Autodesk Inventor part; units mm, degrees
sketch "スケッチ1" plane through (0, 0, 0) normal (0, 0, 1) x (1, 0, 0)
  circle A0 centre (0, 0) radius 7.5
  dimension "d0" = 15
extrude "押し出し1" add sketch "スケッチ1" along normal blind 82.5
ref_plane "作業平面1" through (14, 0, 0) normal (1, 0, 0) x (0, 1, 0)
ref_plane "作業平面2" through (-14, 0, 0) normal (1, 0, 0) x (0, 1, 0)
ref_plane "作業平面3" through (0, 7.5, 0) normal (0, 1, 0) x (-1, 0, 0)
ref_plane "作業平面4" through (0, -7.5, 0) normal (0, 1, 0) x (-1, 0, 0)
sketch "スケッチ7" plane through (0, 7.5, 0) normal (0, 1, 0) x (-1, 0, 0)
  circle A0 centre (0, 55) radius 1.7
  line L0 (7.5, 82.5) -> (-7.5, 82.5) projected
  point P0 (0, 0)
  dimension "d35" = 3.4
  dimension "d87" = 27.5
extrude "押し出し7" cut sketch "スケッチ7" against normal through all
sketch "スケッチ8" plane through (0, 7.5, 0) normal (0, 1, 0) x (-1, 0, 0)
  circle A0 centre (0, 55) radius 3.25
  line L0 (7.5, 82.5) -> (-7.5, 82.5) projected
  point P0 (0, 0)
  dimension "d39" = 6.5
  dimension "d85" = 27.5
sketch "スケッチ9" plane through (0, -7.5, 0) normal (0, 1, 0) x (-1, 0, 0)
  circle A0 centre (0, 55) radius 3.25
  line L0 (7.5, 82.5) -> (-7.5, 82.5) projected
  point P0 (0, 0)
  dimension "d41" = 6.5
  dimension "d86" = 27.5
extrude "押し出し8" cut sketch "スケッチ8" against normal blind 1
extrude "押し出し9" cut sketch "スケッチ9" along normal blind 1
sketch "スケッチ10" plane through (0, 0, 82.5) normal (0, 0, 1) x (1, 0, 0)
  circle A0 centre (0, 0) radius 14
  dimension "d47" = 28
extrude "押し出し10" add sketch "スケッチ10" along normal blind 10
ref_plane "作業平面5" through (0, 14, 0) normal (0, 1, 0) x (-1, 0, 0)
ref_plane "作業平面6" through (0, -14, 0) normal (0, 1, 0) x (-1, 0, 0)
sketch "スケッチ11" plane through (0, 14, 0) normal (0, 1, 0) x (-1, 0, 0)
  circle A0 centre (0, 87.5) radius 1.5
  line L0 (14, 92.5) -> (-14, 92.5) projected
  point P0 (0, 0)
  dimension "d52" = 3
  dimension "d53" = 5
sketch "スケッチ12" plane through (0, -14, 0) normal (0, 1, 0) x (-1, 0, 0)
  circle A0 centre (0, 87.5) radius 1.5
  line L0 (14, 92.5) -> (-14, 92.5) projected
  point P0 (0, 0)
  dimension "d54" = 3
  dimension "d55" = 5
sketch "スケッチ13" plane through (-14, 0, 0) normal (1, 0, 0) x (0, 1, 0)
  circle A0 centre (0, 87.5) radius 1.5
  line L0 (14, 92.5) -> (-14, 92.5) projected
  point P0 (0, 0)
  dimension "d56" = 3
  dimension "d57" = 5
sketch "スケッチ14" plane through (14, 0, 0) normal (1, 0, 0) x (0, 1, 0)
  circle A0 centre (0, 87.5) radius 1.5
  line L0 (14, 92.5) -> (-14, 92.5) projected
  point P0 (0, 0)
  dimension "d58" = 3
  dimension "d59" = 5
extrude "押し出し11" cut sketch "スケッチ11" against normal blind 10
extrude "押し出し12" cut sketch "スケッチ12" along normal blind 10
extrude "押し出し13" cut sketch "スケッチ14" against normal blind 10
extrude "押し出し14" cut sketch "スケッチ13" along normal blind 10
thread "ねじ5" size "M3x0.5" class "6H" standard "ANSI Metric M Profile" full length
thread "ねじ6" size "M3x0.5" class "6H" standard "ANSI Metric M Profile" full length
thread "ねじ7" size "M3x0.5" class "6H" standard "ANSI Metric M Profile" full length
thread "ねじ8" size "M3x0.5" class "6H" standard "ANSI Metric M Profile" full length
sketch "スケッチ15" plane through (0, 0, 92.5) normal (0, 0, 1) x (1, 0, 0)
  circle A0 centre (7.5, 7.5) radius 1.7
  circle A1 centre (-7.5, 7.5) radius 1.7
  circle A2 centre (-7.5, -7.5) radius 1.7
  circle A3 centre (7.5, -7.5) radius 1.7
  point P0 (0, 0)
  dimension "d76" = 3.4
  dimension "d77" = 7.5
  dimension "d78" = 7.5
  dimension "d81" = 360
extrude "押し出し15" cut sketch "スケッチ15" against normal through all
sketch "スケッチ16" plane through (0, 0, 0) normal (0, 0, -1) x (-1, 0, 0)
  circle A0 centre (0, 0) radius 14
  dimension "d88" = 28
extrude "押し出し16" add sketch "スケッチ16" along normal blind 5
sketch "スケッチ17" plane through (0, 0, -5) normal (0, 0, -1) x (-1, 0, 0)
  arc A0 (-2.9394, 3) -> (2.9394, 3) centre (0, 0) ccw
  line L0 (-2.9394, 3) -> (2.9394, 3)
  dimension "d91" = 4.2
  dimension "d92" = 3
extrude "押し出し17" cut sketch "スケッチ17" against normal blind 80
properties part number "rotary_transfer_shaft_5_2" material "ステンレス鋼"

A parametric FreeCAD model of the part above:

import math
import FreeCAD as App
import Part
import Sketcher
from FreeCAD import Vector
Q = App.Units.Quantity

doc = App.newDocument("Part")
body = doc.addObject("PartDesign::Body", "Body")

sketch1 = doc.addObject("Sketcher::SketchObject", "Sketch")
body.addObject(sketch1)
sketch1.AttachmentSupport = (doc.XY_Plane, [""])
sketch1.MapMode = "FlatFace"
sketch1.addGeometry(Part.Circle(Vector(0, 0, 0), Vector(0, 0, 1), 8), False)
sketch1.addConstraint(Sketcher.Constraint("Coincident", 0, 3, -1, 1))
sketch1.addConstraint(Sketcher.Constraint("Diameter", 0, Q("15 mm")))
pad1 = doc.addObject("PartDesign::Pad", "Pad")
body.addObject(pad1)
pad1.Profile = sketch1
pad1.Length = 82.5

sketch2 = doc.addObject("Sketcher::SketchObject", "Sketch001")
body.addObject(sketch2)
sketch2.AttachmentSupport = (doc.XZ_Plane, [""])
sketch2.MapMode = "FlatFace"
sketch2.AttachmentOffset = App.Placement(Vector(0, 0, -7.5), App.Rotation())
sketch2.addGeometry(Part.Circle(Vector(0, 55, 0), Vector(0, 0, 1), 1.7), False)
sketch2.addConstraint(Sketcher.Constraint("PointOnObject", 0, 3, -2))
sketch2.addConstraint(Sketcher.Constraint("Diameter", 0, Q("3.4 mm")))
sketch2.addConstraint(Sketcher.Constraint("DistanceY", -1, 1, 0, 3, Q("55 mm")))
pocket1 = doc.addObject("PartDesign::Pocket", "Pocket")
body.addObject(pocket1)
pocket1.Profile = sketch2
pocket1.Type = "ThroughAll"
pocket1.Reversed = True

sketch3 = doc.addObject("Sketcher::SketchObject", "Sketch002")
body.addObject(sketch3)
sketch3.AttachmentSupport = (doc.XZ_Plane, [""])
sketch3.MapMode = "FlatFace"
sketch3.AttachmentOffset = App.Placement(Vector(0, 0, -7.5), App.Rotation())
sketch3.addGeometry(Part.Circle(Vector(0, 55, 0), Vector(0, 0, 1), 3.2), False)
sketch3.addConstraint(Sketcher.Constraint("PointOnObject", 0, 3, -2))
sketch3.addConstraint(Sketcher.Constraint("Diameter", 0, Q("6.5 mm")))
sketch3.addConstraint(Sketcher.Constraint("DistanceY", -1, 1, 0, 3, Q("55 mm")))
pocket2 = doc.addObject("PartDesign::Pocket", "Pocket001")
body.addObject(pocket2)
pocket2.Profile = sketch3
pocket2.Length = 1
pocket2.Reversed = True

sketch4 = doc.addObject("Sketcher::SketchObject", "Sketch003")
body.addObject(sketch4)
sketch4.AttachmentSupport = (doc.XZ_Plane, [""])
sketch4.MapMode = "FlatFace"
sketch4.AttachmentOffset = App.Placement(Vector(0, 0, 7.5), App.Rotation())
sketch4.addGeometry(Part.Circle(Vector(0, 55, 0), Vector(0, 0, 1), 3.2), False)
sketch4.addConstraint(Sketcher.Constraint("PointOnObject", 0, 3, -2))
sketch4.addConstraint(Sketcher.Constraint("Diameter", 0, Q("6.5 mm")))
sketch4.addConstraint(Sketcher.Constraint("DistanceY", -1, 1, 0, 3, Q("55 mm")))
pocket3 = doc.addObject("PartDesign::Pocket", "Pocket002")
body.addObject(pocket3)
pocket3.Profile = sketch4
pocket3.Length = 1

sketch5 = doc.addObject("Sketcher::SketchObject", "Sketch004")
body.addObject(sketch5)
sketch5.AttachmentSupport = (doc.XY_Plane, [""])
sketch5.MapMode = "FlatFace"
sketch5.AttachmentOffset = App.Placement(Vector(0, 0, 82.5), App.Rotation())
sketch5.addGeometry(Part.Circle(Vector(0, 0, 0), Vector(0, 0, 1), 14), False)
sketch5.addConstraint(Sketcher.Constraint("Coincident", 0, 3, -1, 1))
sketch5.addConstraint(Sketcher.Constraint("Diameter", 0, Q("28 mm")))
pad2 = doc.addObject("PartDesign::Pad", "Pad001")
body.addObject(pad2)
pad2.Profile = sketch5
pad2.Length = 10

sketch6 = doc.addObject("Sketcher::SketchObject", "Sketch005")
body.addObject(sketch6)
sketch6.AttachmentSupport = (doc.XZ_Plane, [""])
sketch6.MapMode = "FlatFace"
sketch6.AttachmentOffset = App.Placement(Vector(0, 0, -14), App.Rotation())
sketch6.addGeometry(Part.Circle(Vector(0, 87.5, 0), Vector(0, 0, 1), 1.5), False)
sketch6.addConstraint(Sketcher.Constraint("PointOnObject", 0, 3, -2))
sketch6.addConstraint(Sketcher.Constraint("Diameter", 0, Q("3 mm")))
sketch6.addConstraint(Sketcher.Constraint("DistanceY", -1, 1, 0, 3, Q("87.5 mm")))
pocket4 = doc.addObject("PartDesign::Pocket", "Pocket003")
body.addObject(pocket4)
pocket4.Profile = sketch6
pocket4.Length = 10
pocket4.Reversed = True

sketch7 = doc.addObject("Sketcher::SketchObject", "Sketch006")
body.addObject(sketch7)
sketch7.AttachmentSupport = (doc.XZ_Plane, [""])
sketch7.MapMode = "FlatFace"
sketch7.AttachmentOffset = App.Placement(Vector(0, 0, 14), App.Rotation())
sketch7.addGeometry(Part.Circle(Vector(0, 87.5, 0), Vector(0, 0, 1), 1.5), False)
sketch7.addConstraint(Sketcher.Constraint("PointOnObject", 0, 3, -2))
sketch7.addConstraint(Sketcher.Constraint("Diameter", 0, Q("3 mm")))
sketch7.addConstraint(Sketcher.Constraint("DistanceY", -1, 1, 0, 3, Q("87.5 mm")))
pocket5 = doc.addObject("PartDesign::Pocket", "Pocket004")
body.addObject(pocket5)
pocket5.Profile = sketch7
pocket5.Length = 10

sketch8 = doc.addObject("Sketcher::SketchObject", "Sketch007")
body.addObject(sketch8)
sketch8.AttachmentSupport = (doc.YZ_Plane, [""])
sketch8.MapMode = "FlatFace"
sketch8.AttachmentOffset = App.Placement(Vector(0, 0, 14), App.Rotation())
sketch8.addGeometry(Part.Circle(Vector(0, 87.5, 0), Vector(0, 0, 1), 1.5), False)
sketch8.addConstraint(Sketcher.Constraint("PointOnObject", 0, 3, -2))
sketch8.addConstraint(Sketcher.Constraint("Diameter", 0, Q("3 mm")))
sketch8.addConstraint(Sketcher.Constraint("DistanceY", -1, 1, 0, 3, Q("87.5 mm")))
pocket6 = doc.addObject("PartDesign::Pocket", "Pocket005")
body.addObject(pocket6)
pocket6.Profile = sketch8
pocket6.Length = 10

sketch9 = doc.addObject("Sketcher::SketchObject", "Sketch008")
body.addObject(sketch9)
sketch9.AttachmentSupport = (doc.YZ_Plane, [""])
sketch9.MapMode = "FlatFace"
sketch9.AttachmentOffset = App.Placement(Vector(0, 0, -14), App.Rotation())
sketch9.addGeometry(Part.Circle(Vector(0, 87.5, 0), Vector(0, 0, 1), 1.5), False)
sketch9.addConstraint(Sketcher.Constraint("PointOnObject", 0, 3, -2))
sketch9.addConstraint(Sketcher.Constraint("Diameter", 0, Q("3 mm")))
sketch9.addConstraint(Sketcher.Constraint("DistanceY", -1, 1, 0, 3, Q("87.5 mm")))
pocket7 = doc.addObject("PartDesign::Pocket", "Pocket006")
body.addObject(pocket7)
pocket7.Profile = sketch9
pocket7.Length = 10
pocket7.Reversed = True

sketch10 = doc.addObject("Sketcher::SketchObject", "Sketch009")
body.addObject(sketch10)
sketch10.AttachmentSupport = (doc.XY_Plane, [""])
sketch10.MapMode = "FlatFace"
sketch10.AttachmentOffset = App.Placement(Vector(0, 0, 92.5), App.Rotation())
sketch10.addGeometry(Part.Circle(Vector(7.5, 7.5, 0), Vector(0, 0, 1), 1.7), False)
sketch10.addGeometry(Part.Circle(Vector(-7.5, 7.5, 0), Vector(0, 0, 1), 1.7), False)
sketch10.addGeometry(Part.Circle(Vector(-7.5, -7.5, 0), Vector(0, 0, 1), 1.7), False)
sketch10.addGeometry(Part.Circle(Vector(7.5, -7.5, 0), Vector(0, 0, 1), 1.7), False)
sketch10.addConstraint(Sketcher.Constraint("Equal", 0, 1))
sketch10.addConstraint(Sketcher.Constraint("Equal", 1, 2))
sketch10.addConstraint(Sketcher.Constraint("Equal", 2, 3))
sketch10.addConstraint(Sketcher.Constraint("Symmetric", 0, 3, 2, 3, -1, 1))
sketch10.addConstraint(Sketcher.Constraint("Symmetric", 1, 3, 3, 3, -1, 1))
sketch10.addConstraint(Sketcher.Constraint("Symmetric", 0, 3, 1, 3, -2))
sketch10.addConstraint(Sketcher.Constraint("Diameter", 0, Q("3.4 mm")))
sketch10.addConstraint(Sketcher.Constraint("DistanceX", -1, 1, 0, 3, Q("7.5 mm")))
sketch10.addConstraint(Sketcher.Constraint("DistanceY", -1, 1, 0, 3, Q("7.5 mm")))
pocket8 = doc.addObject("PartDesign::Pocket", "Pocket007")
body.addObject(pocket8)
pocket8.Profile = sketch10
pocket8.Type = "ThroughAll"

sketch11 = doc.addObject("Sketcher::SketchObject", "Sketch010")
body.addObject(sketch11)
sketch11.AttachmentSupport = (doc.XY_Plane, [""])
sketch11.MapMode = "FlatFace"
sketch11.addGeometry(Part.Circle(Vector(0, 0, 0), Vector(0, 0, 1), 14), False)
sketch11.addConstraint(Sketcher.Constraint("Coincident", 0, 3, -1, 1))
sketch11.addConstraint(Sketcher.Constraint("Diameter", 0, Q("28 mm")))
pad3 = doc.addObject("PartDesign::Pad", "Pad002")
body.addObject(pad3)
pad3.Profile = sketch11
pad3.Length = 5
pad3.Reversed = True

sketch12 = doc.addObject("Sketcher::SketchObject", "Sketch011")
body.addObject(sketch12)
sketch12.AttachmentSupport = (doc.XY_Plane, [""])
sketch12.MapMode = "FlatFace"
sketch12.AttachmentOffset = App.Placement(Vector(0, 0, -5), App.Rotation())
sketch12.addGeometry(Part.LineSegment(Vector(-2.9, 3, 0), Vector(2.9, 3, 0)), False)
sketch12.addGeometry(Part.ArcOfCircle(Part.Circle(Vector(0, 0, 0), Vector(0, 0, 1), 4.2), math.radians(134), math.radians(406)), False)
sketch12.addConstraint(Sketcher.Constraint("Coincident", 0, 1, 1, 1))
sketch12.addConstraint(Sketcher.Constraint("Coincident", 1, 2, 0, 2))
sketch12.addConstraint(Sketcher.Constraint("Horizontal", 0))
sketch12.addConstraint(Sketcher.Constraint("Coincident", 1, 3, -1, 1))
sketch12.addConstraint(Sketcher.Constraint("Radius", 1, Q("4.2 mm")))
sketch12.addConstraint(Sketcher.Constraint("DistanceY", -1, 1, 0, 1, Q("3 mm")))
pocket9 = doc.addObject("PartDesign::Pocket", "Pocket008")
body.addObject(pocket9)
pocket9.Profile = sketch12
pocket9.Length = 80
pocket9.Reversed = True

doc.recompute()
